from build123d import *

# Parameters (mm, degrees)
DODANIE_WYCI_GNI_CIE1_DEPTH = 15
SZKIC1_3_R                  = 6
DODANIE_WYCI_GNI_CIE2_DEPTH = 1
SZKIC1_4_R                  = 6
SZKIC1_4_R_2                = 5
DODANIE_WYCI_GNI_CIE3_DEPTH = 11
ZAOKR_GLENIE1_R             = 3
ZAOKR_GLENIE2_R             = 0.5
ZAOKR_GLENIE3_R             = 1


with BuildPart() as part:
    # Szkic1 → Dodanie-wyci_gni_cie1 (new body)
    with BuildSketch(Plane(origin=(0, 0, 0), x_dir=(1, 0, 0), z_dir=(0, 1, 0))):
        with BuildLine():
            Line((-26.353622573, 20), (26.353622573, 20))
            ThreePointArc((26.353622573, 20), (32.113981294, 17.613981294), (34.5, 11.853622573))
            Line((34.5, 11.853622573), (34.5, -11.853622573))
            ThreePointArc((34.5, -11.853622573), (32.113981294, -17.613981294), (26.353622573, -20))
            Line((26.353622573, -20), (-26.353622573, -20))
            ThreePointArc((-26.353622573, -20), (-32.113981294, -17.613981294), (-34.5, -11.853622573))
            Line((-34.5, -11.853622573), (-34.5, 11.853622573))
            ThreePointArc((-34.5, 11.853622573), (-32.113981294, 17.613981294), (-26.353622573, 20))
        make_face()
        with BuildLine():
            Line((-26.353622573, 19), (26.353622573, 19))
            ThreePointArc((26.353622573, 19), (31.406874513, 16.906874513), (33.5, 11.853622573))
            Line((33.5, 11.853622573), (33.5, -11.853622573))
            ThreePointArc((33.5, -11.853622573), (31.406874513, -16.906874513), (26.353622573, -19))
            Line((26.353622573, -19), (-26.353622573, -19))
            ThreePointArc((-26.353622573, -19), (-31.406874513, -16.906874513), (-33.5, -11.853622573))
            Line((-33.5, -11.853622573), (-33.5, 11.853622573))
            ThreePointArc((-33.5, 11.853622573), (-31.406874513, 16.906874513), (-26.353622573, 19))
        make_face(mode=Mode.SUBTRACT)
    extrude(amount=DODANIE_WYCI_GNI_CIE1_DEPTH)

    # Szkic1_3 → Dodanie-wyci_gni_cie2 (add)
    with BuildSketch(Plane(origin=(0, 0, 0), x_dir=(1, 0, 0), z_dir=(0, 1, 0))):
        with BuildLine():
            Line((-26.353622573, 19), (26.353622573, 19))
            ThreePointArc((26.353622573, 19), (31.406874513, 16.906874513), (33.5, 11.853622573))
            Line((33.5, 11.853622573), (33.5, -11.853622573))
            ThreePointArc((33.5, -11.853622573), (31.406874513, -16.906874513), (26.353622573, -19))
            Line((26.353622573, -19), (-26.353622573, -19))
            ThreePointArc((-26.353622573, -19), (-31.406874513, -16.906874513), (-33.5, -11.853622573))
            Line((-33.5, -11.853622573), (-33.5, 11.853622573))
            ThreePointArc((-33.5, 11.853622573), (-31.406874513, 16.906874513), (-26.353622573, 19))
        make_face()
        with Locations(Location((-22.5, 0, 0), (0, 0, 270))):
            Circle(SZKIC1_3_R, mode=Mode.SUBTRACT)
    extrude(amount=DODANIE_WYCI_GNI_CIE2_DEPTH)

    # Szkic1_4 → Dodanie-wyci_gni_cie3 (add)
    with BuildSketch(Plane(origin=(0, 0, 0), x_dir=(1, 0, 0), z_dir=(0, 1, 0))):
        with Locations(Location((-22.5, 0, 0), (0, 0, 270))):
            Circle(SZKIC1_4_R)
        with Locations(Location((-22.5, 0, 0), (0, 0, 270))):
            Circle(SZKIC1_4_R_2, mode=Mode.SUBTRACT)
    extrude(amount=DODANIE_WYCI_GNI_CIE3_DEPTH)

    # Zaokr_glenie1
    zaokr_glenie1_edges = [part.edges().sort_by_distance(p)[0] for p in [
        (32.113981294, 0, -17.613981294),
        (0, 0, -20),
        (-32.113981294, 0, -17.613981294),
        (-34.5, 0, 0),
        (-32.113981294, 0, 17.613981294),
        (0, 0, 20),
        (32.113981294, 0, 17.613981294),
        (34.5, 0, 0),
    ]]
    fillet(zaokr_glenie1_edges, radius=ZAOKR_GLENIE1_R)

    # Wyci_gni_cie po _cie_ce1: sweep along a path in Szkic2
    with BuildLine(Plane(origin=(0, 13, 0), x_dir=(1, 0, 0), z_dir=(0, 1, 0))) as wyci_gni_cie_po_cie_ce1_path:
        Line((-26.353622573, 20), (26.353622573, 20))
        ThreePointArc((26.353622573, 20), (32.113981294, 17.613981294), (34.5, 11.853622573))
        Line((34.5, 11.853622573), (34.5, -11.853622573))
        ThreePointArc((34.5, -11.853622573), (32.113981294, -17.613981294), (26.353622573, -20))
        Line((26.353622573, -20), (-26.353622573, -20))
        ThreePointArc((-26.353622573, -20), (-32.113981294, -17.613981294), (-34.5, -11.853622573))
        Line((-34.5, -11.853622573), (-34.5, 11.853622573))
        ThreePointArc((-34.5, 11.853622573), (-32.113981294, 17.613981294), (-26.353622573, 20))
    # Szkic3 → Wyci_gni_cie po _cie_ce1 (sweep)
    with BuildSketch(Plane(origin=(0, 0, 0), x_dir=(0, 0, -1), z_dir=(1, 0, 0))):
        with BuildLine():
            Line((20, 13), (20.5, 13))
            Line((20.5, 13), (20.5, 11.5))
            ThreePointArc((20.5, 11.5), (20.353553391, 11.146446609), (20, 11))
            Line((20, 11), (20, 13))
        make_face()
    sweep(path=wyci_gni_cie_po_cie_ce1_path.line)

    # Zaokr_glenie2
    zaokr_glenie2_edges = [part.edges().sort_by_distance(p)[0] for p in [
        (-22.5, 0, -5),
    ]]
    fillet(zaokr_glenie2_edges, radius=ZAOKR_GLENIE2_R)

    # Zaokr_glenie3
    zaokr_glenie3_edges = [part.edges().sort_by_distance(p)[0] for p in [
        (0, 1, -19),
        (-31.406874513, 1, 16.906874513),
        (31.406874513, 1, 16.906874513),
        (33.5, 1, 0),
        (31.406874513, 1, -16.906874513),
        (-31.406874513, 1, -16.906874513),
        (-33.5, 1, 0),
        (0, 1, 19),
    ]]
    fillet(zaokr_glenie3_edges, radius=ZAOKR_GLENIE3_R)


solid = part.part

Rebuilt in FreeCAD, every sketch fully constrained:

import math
import FreeCAD as App
import Part
import Sketcher

V = App.Vector


def edges_at(feature, points):
    """Names of the edges that pass closest to the given points."""
    edges = feature.Shape.Edges
    near = lambda p: min(range(len(edges)), key=lambda i: edges[i].distToShape(Part.Vertex(*p))[0])
    return sorted({f"Edge{near(p) + 1}" for p in points})

doc = App.newDocument("Part")
body = doc.addObject("PartDesign::Body", "Body")

# Sketch on XZ plane
sketch1 = body.newObject("Sketcher::SketchObject", "Sketch")
sketch1.AttachmentSupport = (doc.getObject("XZ_Plane"), [""])
sketch1.MapMode = "FlatFace"
sketch1.addGeometry(Part.LineSegment(V(26.353623, -20, 0), V(-26.353623, -20, 0)), False)
sketch1.addGeometry(Part.ArcOfCircle(Part.Circle(V(-26.353623, -11.853623, 0), V(0, 0, 1), 8.146377), math.radians(180), math.radians(270)), False)
sketch1.addGeometry(Part.LineSegment(V(-34.5, -11.853623, 0), V(-34.5, 11.853623, 0)), False)
sketch1.addGeometry(Part.ArcOfCircle(Part.Circle(V(-26.353623, 11.853623, 0), V(0, 0, 1), 8.146377), math.radians(90), math.radians(180)), False)
sketch1.addGeometry(Part.LineSegment(V(-26.353623, 20, 0), V(26.353623, 20, 0)), False)
sketch1.addGeometry(Part.ArcOfCircle(Part.Circle(V(26.353623, 11.853623, 0), V(0, 0, 1), 8.146377), math.radians(0), math.radians(90)), False)
sketch1.addGeometry(Part.LineSegment(V(34.5, 11.853623, 0), V(34.5, -11.853623, 0)), False)
sketch1.addGeometry(Part.ArcOfCircle(Part.Circle(V(26.353623, -11.853623, 0), V(0, 0, 1), 8.146377), math.radians(-90), math.radians(0)), False)
sketch1.addGeometry(Part.LineSegment(V(-26.353623, -19, 0), V(26.353623, -19, 0)), False)
sketch1.addGeometry(Part.ArcOfCircle(Part.Circle(V(26.353623, -11.853623, 0), V(0, 0, 1), 7.146377), math.radians(-90), math.radians(0)), False)
sketch1.addGeometry(Part.LineSegment(V(33.5, -11.853623, 0), V(33.5, 11.853623, 0)), False)
sketch1.addGeometry(Part.ArcOfCircle(Part.Circle(V(26.353623, 11.853623, 0), V(0, 0, 1), 7.146377), math.radians(0), math.radians(90)), False)
sketch1.addGeometry(Part.LineSegment(V(26.353623, 19, 0), V(-26.353623, 19, 0)), False)
sketch1.addGeometry(Part.ArcOfCircle(Part.Circle(V(-26.353623, 11.853623, 0), V(0, 0, 1), 7.146377), math.radians(90), math.radians(180)), False)
sketch1.addGeometry(Part.LineSegment(V(-33.5, 11.853623, 0), V(-33.5, -11.853623, 0)), False)
sketch1.addGeometry(Part.ArcOfCircle(Part.Circle(V(-26.353623, -11.853623, 0), V(0, 0, 1), 7.146377), math.radians(180), math.radians(270)), False)
sketch1.addConstraint(Sketcher.Constraint("Tangent", 0, 2, 1, 2))
sketch1.addConstraint(Sketcher.Constraint("Tangent", 1, 1, 2, 1))
sketch1.addConstraint(Sketcher.Constraint("Tangent", 2, 2, 3, 2))
sketch1.addConstraint(Sketcher.Constraint("Tangent", 3, 1, 4, 1))
sketch1.addConstraint(Sketcher.Constraint("Tangent", 4, 2, 5, 2))
sketch1.addConstraint(Sketcher.Constraint("Tangent", 5, 1, 6, 1))
sketch1.addConstraint(Sketcher.Constraint("Tangent", 6, 2, 7, 2))
sketch1.addConstraint(Sketcher.Constraint("Tangent", 7, 1, 0, 1))
sketch1.addConstraint(Sketcher.Constraint("Tangent", 8, 2, 9, 1))
sketch1.addConstraint(Sketcher.Constraint("Tangent", 9, 2, 10, 1))
sketch1.addConstraint(Sketcher.Constraint("Tangent", 10, 2, 11, 1))
sketch1.addConstraint(Sketcher.Constraint("Tangent", 11, 2, 12, 1))
sketch1.addConstraint(Sketcher.Constraint("Tangent", 12, 2, 13, 1))
sketch1.addConstraint(Sketcher.Constraint("Tangent", 13, 2, 14, 1))
sketch1.addConstraint(Sketcher.Constraint("Tangent", 14, 2, 15, 1))
sketch1.addConstraint(Sketcher.Constraint("Tangent", 15, 2, 8, 1))
sketch1.addConstraint(Sketcher.Constraint("Horizontal", 0))
sketch1.addConstraint(Sketcher.Constraint("Vertical", 2))
sketch1.addConstraint(Sketcher.Constraint("Horizontal", 4))
sketch1.addConstraint(Sketcher.Constraint("Vertical", 6))
sketch1.addConstraint(Sketcher.Constraint("Horizontal", 8))
sketch1.addConstraint(Sketcher.Constraint("Vertical", 10))
sketch1.addConstraint(Sketcher.Constraint("Horizontal", 12))
sketch1.addConstraint(Sketcher.Constraint("Vertical", 14))
sketch1.addConstraint(Sketcher.Constraint("Coincident", 9, 3, 7, 3))
sketch1.addConstraint(Sketcher.Constraint("Coincident", 11, 3, 5, 3))
sketch1.addConstraint(Sketcher.Constraint("Coincident", 13, 3, 3, 3))
sketch1.addConstraint(Sketcher.Constraint("Equal", 1, 3))
sketch1.addConstraint(Sketcher.Constraint("Equal", 3, 5))
sketch1.addConstraint(Sketcher.Constraint("Equal", 5, 7))
sketch1.addConstraint(Sketcher.Constraint("Equal", 13, 15))
sketch1.addConstraint(Sketcher.Constraint("Symmetric", 1, 3, 5, 3, -1, 1))
sketch1.addConstraint(Sketcher.Constraint("DistanceY", 0, 2, -1, 1, 20.0))
sketch1.addConstraint(Sketcher.Constraint("DistanceY", 8, 2, -1, 1, 19.0))
sketch1.addConstraint(Sketcher.Constraint("DistanceX", 1, 1, -1, 1, 34.5))
sketch1.addConstraint(Sketcher.Constraint("Radius", 1, 8.146377))
pad1 = body.newObject("PartDesign::Pad", "Pad")
pad1.Profile = sketch1
pad1.Length = 15
pad1.Reversed = True

# Sketch on XZ plane
sketch2 = body.newObject("Sketcher::SketchObject", "Sketch001")
sketch2.AttachmentSupport = (doc.getObject("XZ_Plane"), [""])
sketch2.MapMode = "FlatFace"
sketch2.addGeometry(Part.LineSegment(V(26.353623, -19, 0), V(-26.353623, -19, 0)), False)
sketch2.addGeometry(Part.ArcOfCircle(Part.Circle(V(-26.353623, -11.853623, 0), V(0, 0, 1), 7.146377), math.radians(180), math.radians(270)), False)
sketch2.addGeometry(Part.LineSegment(V(-33.5, -11.853623, 0), V(-33.5, 11.853623, 0)), False)
sketch2.addGeometry(Part.ArcOfCircle(Part.Circle(V(-26.353623, 11.853623, 0), V(0, 0, 1), 7.146377), math.radians(90), math.radians(180)), False)
sketch2.addGeometry(Part.LineSegment(V(-26.353623, 19, 0), V(26.353623, 19, 0)), False)
sketch2.addGeometry(Part.ArcOfCircle(Part.Circle(V(26.353623, 11.853623, 0), V(0, 0, 1), 7.146377), math.radians(0), math.radians(90)), False)
sketch2.addGeometry(Part.LineSegment(V(33.5, 11.853623, 0), V(33.5, -11.853623, 0)), False)
sketch2.addGeometry(Part.ArcOfCircle(Part.Circle(V(26.353623, -11.853623, 0), V(0, 0, 1), 7.146377), math.radians(-90), math.radians(0)), False)
sketch2.addGeometry(Part.Circle(V(-22.5, 0, 0), V(0, 0, 1), 6), False)
sketch2.addConstraint(Sketcher.Constraint("Tangent", 0, 2, 1, 2))
sketch2.addConstraint(Sketcher.Constraint("Tangent", 1, 1, 2, 1))
sketch2.addConstraint(Sketcher.Constraint("Tangent", 2, 2, 3, 2))
sketch2.addConstraint(Sketcher.Constraint("Tangent", 3, 1, 4, 1))
sketch2.addConstraint(Sketcher.Constraint("Tangent", 4, 2, 5, 2))
sketch2.addConstraint(Sketcher.Constraint("Tangent", 5, 1, 6, 1))
sketch2.addConstraint(Sketcher.Constraint("Tangent", 6, 2, 7, 2))
sketch2.addConstraint(Sketcher.Constraint("Tangent", 7, 1, 0, 1))
sketch2.addConstraint(Sketcher.Constraint("Horizontal", 0))
sketch2.addConstraint(Sketcher.Constraint("Vertical", 2))
sketch2.addConstraint(Sketcher.Constraint("Horizontal", 4))
sketch2.addConstraint(Sketcher.Constraint("Vertical", 6))
sketch2.addConstraint(Sketcher.Constraint("Equal", 1, 3))
sketch2.addConstraint(Sketcher.Constraint("Equal", 3, 5))
sketch2.addConstraint(Sketcher.Constraint("Equal", 5, 7))
sketch2.addConstraint(Sketcher.Constraint("Symmetric", 1, 3, 5, 3, -1, 1))
sketch2.addConstraint(Sketcher.Constraint("PointOnObject", 8, 3, -1))
sketch2.addConstraint(Sketcher.Constraint("Diameter", 8, 12.0))
sketch2.addConstraint(Sketcher.Constraint("DistanceY", 0, 2, -1, 1, 19.0))
sketch2.addConstraint(Sketcher.Constraint("DistanceX", 1, 1, 8, 3, 11.0))
sketch2.addConstraint(Sketcher.Constraint("DistanceX", 8, 3, 5, 1, 56.0))
sketch2.addConstraint(Sketcher.Constraint("Radius", 1, 7.146377))
pad2 = body.newObject("PartDesign::Pad", "Pad001")
pad2.Profile = sketch2
pad2.Length = 1
pad2.Reversed = True

# Sketch on XZ plane
sketch3 = body.newObject("Sketcher::SketchObject", "Sketch002")
sketch3.AttachmentSupport = (doc.getObject("XZ_Plane"), [""])
sketch3.MapMode = "FlatFace"
sketch3.addGeometry(Part.Circle(V(-22.5, 0, 0), V(0, 0, 1), 6), False)
sketch3.addGeometry(Part.Circle(V(-22.5, 0, 0), V(0, 0, 1), 5), False)
sketch3.addConstraint(Sketcher.Constraint("Coincident", 1, 3, 0, 3))
sketch3.addConstraint(Sketcher.Constraint("PointOnObject", 0, 3, -1))
sketch3.addConstraint(Sketcher.Constraint("Diameter", 0, 12.0))
sketch3.addConstraint(Sketcher.Constraint("Diameter", 1, 10.0))
sketch3.addConstraint(Sketcher.Constraint("DistanceX", 0, 3, -1, 1, 22.5))
pad3 = body.newObject("PartDesign::Pad", "Pad002")
pad3.Profile = sketch3
pad3.Length = 11
pad3.Reversed = True
doc.recompute()

fillet = body.newObject("PartDesign::Fillet", "Fillet")
fillet.Base = (pad3, edges_at(pad3, [
    (32.114, 0, -17.614),
    (0, 0, -20),
    (-32.114, 0, -17.614),
    (-34.5, 0, 0),
    (-32.114, 0, 17.614),
    (0, 0, 20),
    (32.114, 0, 17.614),
    (34.5, 0, 0),
]))
fillet.Radius = 3

# Sketch on YZ plane
sketch4 = body.newObject("Sketcher::SketchObject", "Sketch003")
sketch4.AttachmentSupport = (doc.getObject("YZ_Plane"), [""])
sketch4.MapMode = "FlatFace"
sketch4.addGeometry(Part.LineSegment(V(13, -20.5, 0), V(13, -20, 0)), False)
sketch4.addGeometry(Part.LineSegment(V(13, -20, 0), V(11, -20, 0)), False)
sketch4.addGeometry(Part.ArcOfCircle(Part.Circle(V(11.5, -20, 0), V(0, 0, 1), 0.5), math.radians(180), math.radians(270)), False)
sketch4.addGeometry(Part.LineSegment(V(11.5, -20.5, 0), V(13, -20.5, 0)), False)
sketch4.addConstraint(Sketcher.Constraint("Coincident", 0, 2, 1, 1))
sketch4.addConstraint(Sketcher.Constraint("Coincident", 1, 2, 2, 1))
sketch4.addConstraint(Sketcher.Constraint("Tangent", 2, 2, 3, 1))
sketch4.addConstraint(Sketcher.Constraint("Coincident", 3, 2, 0, 1))
sketch4.addConstraint(Sketcher.Constraint("Vertical", 0))
sketch4.addConstraint(Sketcher.Constraint("Horizontal", 1))
sketch4.addConstraint(Sketcher.Constraint("Horizontal", 3))
sketch4.addConstraint(Sketcher.Constraint("Horizontal", 2, 3, 0, 2))
sketch4.addConstraint(Sketcher.Constraint("Radius", 2, 0.5))
sketch4.addConstraint(Sketcher.Constraint("DistanceX", 1, 2, 1, 1, 2.0))
sketch4.addConstraint(Sketcher.Constraint("DistanceY", 2, 3, -1, 1, 20.0))
sketch4.addConstraint(Sketcher.Constraint("DistanceX", -1, 1, 0, 2, 13.0))

# Sketch on XZ plane
sketch5 = body.newObject("Sketcher::SketchObject", "Sketch004")
sketch5.AttachmentSupport = (doc.getObject("XZ_Plane"), [""])
sketch5.MapMode = "FlatFace"
sketch5.AttachmentOffset = App.Placement(V(0, 0, -13), App.Rotation())
sketch5.addGeometry(Part.LineSegment(V(-26.353623, -20, 0), V(26.353623, -20, 0)), False)
sketch5.addGeometry(Part.ArcOfCircle(Part.Circle(V(26.353623, -11.853623, 0), V(0, 0, 1), 8.146377), math.radians(-90), math.radians(0)), False)
sketch5.addGeometry(Part.LineSegment(V(34.5, -11.853623, 0), V(34.5, 11.853623, 0)), False)
sketch5.addGeometry(Part.ArcOfCircle(Part.Circle(V(26.353623, 11.853623, 0), V(0, 0, 1), 8.146377), math.radians(0), math.radians(90)), False)
sketch5.addGeometry(Part.LineSegment(V(26.353623, 20, 0), V(-26.353623, 20, 0)), False)
sketch5.addGeometry(Part.ArcOfCircle(Part.Circle(V(-26.353623, 11.853623, 0), V(0, 0, 1), 8.146377), math.radians(90), math.radians(180)), False)
sketch5.addGeometry(Part.LineSegment(V(-34.5, 11.853623, 0), V(-34.5, -11.853623, 0)), False)
sketch5.addGeometry(Part.ArcOfCircle(Part.Circle(V(-26.353623, -11.853623, 0), V(0, 0, 1), 8.146377), math.radians(180), math.radians(270)), False)
sketch5.addConstraint(Sketcher.Constraint("Tangent", 0, 2, 1, 1))
sketch5.addConstraint(Sketcher.Constraint("Tangent", 1, 2, 2, 1))
sketch5.addConstraint(Sketcher.Constraint("Tangent", 2, 2, 3, 1))
sketch5.addConstraint(Sketcher.Constraint("Tangent", 3, 2, 4, 1))
sketch5.addConstraint(Sketcher.Constraint("Tangent", 4, 2, 5, 1))
sketch5.addConstraint(Sketcher.Constraint("Tangent", 5, 2, 6, 1))
sketch5.addConstraint(Sketcher.Constraint("Tangent", 6, 2, 7, 1))
sketch5.addConstraint(Sketcher.Constraint("Tangent", 7, 2, 0, 1))
sketch5.addConstraint(Sketcher.Constraint("Horizontal", 0))
sketch5.addConstraint(Sketcher.Constraint("Vertical", 2))
sketch5.addConstraint(Sketcher.Constraint("Horizontal", 4))
sketch5.addConstraint(Sketcher.Constraint("Vertical", 6))
sketch5.addConstraint(Sketcher.Constraint("Equal", 1, 3))
sketch5.addConstraint(Sketcher.Constraint("Equal", 3, 5))
sketch5.addConstraint(Sketcher.Constraint("Equal", 5, 7))
sketch5.addConstraint(Sketcher.Constraint("Symmetric", 1, 3, 5, 3, -1, 1))
sketch5.addConstraint(Sketcher.Constraint("DistanceY", 0, 2, -1, 1, 20.0))
sketch5.addConstraint(Sketcher.Constraint("DistanceX", -1, 1, 1, 2, 34.5))
sketch5.addConstraint(Sketcher.Constraint("Radius", 1, 8.146377))
doc.recompute()

additivepipe = body.newObject("PartDesign::AdditivePipe", "AdditivePipe")
additivepipe.Profile = sketch4
additivepipe.Spine = (sketch5, ["Edge1", "Edge2", "Edge3", "Edge4", "Edge5", "Edge6", "Edge7", "Edge8"])
doc.recompute()

fillet2 = body.newObject("PartDesign::Fillet", "Fillet001")
fillet2.Base = (additivepipe, edges_at(additivepipe, [(-22.5, 0, -5)]))
fillet2.Radius = 0.5
doc.recompute()

fillet3 = body.newObject("PartDesign::Fillet", "Fillet002")
fillet3.Base = (fillet2, edges_at(fillet2, [
    (0, 1, -19),
    (-31.407, 1, 16.907),
    (31.407, 1, 16.907),
    (33.5, 1, 0),
    (31.407, 1, -16.907),
    (-31.407, 1, -16.907),
    (-33.5, 1, 0),
    (0, 1, 19),
]))
fillet3.Radius = 1

doc.recompute()
